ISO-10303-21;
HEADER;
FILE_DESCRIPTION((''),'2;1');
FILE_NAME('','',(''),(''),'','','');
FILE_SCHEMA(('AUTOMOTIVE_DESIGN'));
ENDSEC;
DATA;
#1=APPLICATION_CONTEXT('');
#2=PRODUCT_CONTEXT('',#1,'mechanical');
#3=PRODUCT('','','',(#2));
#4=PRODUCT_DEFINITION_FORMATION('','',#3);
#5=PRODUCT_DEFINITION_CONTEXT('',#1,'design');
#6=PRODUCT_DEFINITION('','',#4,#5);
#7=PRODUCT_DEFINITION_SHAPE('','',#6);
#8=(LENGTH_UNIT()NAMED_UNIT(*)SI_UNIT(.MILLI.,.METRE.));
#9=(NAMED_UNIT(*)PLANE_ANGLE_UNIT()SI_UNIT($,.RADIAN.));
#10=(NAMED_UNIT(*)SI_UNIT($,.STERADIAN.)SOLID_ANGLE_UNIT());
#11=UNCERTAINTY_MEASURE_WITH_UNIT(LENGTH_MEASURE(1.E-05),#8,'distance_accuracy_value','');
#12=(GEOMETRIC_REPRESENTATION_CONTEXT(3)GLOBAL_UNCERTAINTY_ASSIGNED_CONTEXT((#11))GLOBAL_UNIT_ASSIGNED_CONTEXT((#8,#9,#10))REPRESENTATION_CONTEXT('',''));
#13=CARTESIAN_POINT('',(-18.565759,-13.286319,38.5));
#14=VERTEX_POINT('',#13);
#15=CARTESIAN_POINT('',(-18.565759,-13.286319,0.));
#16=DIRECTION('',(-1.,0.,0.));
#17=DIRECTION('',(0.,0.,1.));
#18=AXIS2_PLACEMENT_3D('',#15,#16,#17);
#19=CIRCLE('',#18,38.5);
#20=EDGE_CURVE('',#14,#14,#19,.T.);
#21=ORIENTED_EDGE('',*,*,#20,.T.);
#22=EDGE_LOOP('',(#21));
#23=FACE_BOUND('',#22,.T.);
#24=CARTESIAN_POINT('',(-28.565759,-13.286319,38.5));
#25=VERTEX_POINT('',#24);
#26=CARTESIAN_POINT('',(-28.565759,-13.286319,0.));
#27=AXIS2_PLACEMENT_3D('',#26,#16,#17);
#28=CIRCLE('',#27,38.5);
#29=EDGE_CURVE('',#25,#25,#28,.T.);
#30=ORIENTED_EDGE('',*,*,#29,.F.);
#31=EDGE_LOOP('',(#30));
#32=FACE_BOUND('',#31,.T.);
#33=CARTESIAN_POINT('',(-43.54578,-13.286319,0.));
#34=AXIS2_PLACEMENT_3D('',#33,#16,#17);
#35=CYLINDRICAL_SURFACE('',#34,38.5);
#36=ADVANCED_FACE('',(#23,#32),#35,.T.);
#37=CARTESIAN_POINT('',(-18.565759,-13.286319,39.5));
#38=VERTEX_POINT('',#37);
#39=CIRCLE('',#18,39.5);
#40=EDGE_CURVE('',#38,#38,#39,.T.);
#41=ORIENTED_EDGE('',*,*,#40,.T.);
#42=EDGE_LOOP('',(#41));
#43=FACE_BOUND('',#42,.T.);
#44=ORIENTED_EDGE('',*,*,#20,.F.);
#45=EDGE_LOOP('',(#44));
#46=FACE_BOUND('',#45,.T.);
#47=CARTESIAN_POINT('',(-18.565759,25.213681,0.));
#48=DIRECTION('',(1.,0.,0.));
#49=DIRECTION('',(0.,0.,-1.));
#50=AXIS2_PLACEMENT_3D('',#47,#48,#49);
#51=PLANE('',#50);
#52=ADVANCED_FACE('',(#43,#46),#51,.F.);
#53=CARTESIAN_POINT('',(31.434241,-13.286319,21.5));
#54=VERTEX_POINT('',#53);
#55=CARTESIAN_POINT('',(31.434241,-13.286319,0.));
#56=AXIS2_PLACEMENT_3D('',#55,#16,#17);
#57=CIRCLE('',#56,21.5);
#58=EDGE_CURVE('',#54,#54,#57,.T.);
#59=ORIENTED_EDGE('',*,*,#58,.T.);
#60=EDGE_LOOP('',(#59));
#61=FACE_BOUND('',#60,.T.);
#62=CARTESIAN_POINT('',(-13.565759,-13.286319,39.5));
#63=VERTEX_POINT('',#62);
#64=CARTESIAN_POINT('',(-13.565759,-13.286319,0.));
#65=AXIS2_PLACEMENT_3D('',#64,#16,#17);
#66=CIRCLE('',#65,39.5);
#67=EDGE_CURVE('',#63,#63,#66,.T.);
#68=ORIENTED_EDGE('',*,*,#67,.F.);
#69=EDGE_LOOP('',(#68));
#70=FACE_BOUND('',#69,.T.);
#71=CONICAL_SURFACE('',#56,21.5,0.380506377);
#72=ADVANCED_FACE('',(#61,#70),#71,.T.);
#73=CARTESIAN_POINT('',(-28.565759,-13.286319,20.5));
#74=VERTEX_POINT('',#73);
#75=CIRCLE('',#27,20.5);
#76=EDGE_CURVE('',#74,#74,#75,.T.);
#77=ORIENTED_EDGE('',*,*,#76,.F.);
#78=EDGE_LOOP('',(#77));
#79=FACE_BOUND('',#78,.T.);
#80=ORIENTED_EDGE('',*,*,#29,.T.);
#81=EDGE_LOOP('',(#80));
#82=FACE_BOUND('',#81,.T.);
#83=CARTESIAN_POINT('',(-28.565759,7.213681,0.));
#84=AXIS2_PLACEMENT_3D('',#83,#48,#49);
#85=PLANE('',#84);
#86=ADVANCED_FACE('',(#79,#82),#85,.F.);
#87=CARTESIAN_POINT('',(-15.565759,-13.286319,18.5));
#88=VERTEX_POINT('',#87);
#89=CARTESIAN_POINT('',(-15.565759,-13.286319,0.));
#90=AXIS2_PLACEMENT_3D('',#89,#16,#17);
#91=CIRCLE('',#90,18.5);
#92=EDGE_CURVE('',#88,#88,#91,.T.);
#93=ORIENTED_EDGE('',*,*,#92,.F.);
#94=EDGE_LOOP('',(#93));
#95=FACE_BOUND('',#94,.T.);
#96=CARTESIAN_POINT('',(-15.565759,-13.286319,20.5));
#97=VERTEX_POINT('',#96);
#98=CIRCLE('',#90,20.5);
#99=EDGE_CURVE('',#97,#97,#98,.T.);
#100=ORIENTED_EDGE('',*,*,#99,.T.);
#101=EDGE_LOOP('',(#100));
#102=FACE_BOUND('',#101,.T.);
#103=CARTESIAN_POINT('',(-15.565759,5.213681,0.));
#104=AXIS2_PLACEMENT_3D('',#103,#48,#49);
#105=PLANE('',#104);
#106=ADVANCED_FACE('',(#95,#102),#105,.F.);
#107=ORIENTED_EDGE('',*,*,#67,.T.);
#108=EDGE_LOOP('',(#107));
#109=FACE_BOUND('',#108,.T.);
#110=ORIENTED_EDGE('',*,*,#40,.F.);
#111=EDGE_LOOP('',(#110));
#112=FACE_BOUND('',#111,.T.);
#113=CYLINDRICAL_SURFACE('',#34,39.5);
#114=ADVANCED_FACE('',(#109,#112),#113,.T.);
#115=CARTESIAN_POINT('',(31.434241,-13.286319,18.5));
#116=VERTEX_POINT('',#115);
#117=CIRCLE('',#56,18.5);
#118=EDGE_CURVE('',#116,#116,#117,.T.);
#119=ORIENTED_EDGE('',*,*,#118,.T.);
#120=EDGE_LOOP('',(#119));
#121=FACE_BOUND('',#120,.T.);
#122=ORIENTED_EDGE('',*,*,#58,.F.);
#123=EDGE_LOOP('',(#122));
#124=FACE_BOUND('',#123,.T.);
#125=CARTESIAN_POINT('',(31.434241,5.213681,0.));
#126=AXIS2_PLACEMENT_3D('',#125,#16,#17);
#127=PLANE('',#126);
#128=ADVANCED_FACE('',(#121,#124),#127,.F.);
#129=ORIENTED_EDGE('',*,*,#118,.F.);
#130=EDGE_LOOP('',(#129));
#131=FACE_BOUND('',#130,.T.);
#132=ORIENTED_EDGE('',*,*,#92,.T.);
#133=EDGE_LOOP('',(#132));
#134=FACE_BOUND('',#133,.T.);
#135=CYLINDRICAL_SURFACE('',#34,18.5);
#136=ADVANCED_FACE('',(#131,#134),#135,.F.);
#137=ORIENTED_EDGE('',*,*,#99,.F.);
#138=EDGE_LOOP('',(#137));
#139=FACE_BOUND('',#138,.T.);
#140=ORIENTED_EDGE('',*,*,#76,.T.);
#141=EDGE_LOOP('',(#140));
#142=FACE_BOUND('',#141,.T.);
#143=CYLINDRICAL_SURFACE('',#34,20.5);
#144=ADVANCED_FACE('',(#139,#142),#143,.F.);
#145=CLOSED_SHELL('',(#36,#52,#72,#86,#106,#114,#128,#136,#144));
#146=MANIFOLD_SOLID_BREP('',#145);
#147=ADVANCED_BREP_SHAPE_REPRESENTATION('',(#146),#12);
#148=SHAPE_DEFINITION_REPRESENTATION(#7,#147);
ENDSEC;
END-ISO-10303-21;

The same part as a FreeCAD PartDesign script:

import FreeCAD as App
import Part
import Sketcher


def add_polygon(sketch, points):
    """Adds a closed chain of lines whose ends are joined by coincident constraints."""
    first, n = sketch.GeometryCount, len(points)
    for a, b in zip(points, points[1:] + points[:1]):
        sketch.addGeometry(Part.LineSegment(App.Vector(*a, 0), App.Vector(*b, 0)), False)
    for i in range(n):
        sketch.addConstraint(Sketcher.Constraint("Coincident", first + i, 2, first + (i + 1) % n, 1))

doc = App.newDocument("Part")
body = doc.addObject("PartDesign::Body", "Body")

sketch1 = body.newObject("Sketcher::SketchObject", "Sketch")
sketch1.AttachmentSupport = (doc.getObject("XY_Plane"), [""])
sketch1.MapMode = "FlatFace"
add_polygon(sketch1, [(-18.565759, 25.213681), (-28.565759, 25.213681), (-28.565759, 7.213681), (-15.565759, 7.213681), (-15.565759, 5.213681), (31.434241, 5.213681), (31.434241, 8.213681), (-13.565759, 26.213681), (-18.565759, 26.213681)])
sketch1.addGeometry(Part.LineSegment(App.Vector(-28.565759, -13.286319, 0), App.Vector(31.434241, -13.286319, 0)), True)
sketch1.addConstraint(Sketcher.Constraint("Horizontal", 0))
sketch1.addConstraint(Sketcher.Constraint("Vertical", 1))
sketch1.addConstraint(Sketcher.Constraint("Horizontal", 2))
sketch1.addConstraint(Sketcher.Constraint("Vertical", 3))
sketch1.addConstraint(Sketcher.Constraint("Horizontal", 4))
sketch1.addConstraint(Sketcher.Constraint("Vertical", 5))
sketch1.addConstraint(Sketcher.Constraint("Horizontal", 7))
sketch1.addConstraint(Sketcher.Constraint("Vertical", 8))
sketch1.addConstraint(Sketcher.Constraint("Horizontal", 9))
sketch1.addConstraint(Sketcher.Constraint("Vertical", 1, 2, 9, 1))
sketch1.addConstraint(Sketcher.Constraint("Vertical", 5, 2, 9, 2))
sketch1.addConstraint(Sketcher.Constraint("DistanceX", 0, 2, 0, 1, 10.0))
sketch1.addConstraint(Sketcher.Constraint("DistanceX", 2, 1, 2, 2, 13.0))
sketch1.addConstraint(Sketcher.Constraint("DistanceX", 4, 1, 4, 2, 47.0))
sketch1.addConstraint(Sketcher.Constraint("DistanceX", 7, 2, 7, 1, 5.0))
sketch1.addConstraint(Sketcher.Constraint("DistanceY", 1, 2, 1, 1, 18.0))
sketch1.addConstraint(Sketcher.Constraint("DistanceY", 3, 2, 3, 1, 2.0))
sketch1.addConstraint(Sketcher.Constraint("DistanceY", 5, 1, 5, 2, 3.0))
sketch1.addConstraint(Sketcher.Constraint("DistanceY", 8, 2, 8, 1, 1.0))
sketch1.addConstraint(Sketcher.Constraint("DistanceY", 9, 1, 1, 2, 20.5))
sketch1.addConstraint(Sketcher.Constraint("DistanceX", 0, 2, -1, 1, 28.565759))
sketch1.addConstraint(Sketcher.Constraint("DistanceY", -1, 1, 0, 2, 25.213681))
revolution = body.newObject("PartDesign::Revolution", "Revolution")
revolution.Profile = sketch1
revolution.ReferenceAxis = (sketch1, ["Axis0"])
revolution.Angle = 360

doc.recompute()
